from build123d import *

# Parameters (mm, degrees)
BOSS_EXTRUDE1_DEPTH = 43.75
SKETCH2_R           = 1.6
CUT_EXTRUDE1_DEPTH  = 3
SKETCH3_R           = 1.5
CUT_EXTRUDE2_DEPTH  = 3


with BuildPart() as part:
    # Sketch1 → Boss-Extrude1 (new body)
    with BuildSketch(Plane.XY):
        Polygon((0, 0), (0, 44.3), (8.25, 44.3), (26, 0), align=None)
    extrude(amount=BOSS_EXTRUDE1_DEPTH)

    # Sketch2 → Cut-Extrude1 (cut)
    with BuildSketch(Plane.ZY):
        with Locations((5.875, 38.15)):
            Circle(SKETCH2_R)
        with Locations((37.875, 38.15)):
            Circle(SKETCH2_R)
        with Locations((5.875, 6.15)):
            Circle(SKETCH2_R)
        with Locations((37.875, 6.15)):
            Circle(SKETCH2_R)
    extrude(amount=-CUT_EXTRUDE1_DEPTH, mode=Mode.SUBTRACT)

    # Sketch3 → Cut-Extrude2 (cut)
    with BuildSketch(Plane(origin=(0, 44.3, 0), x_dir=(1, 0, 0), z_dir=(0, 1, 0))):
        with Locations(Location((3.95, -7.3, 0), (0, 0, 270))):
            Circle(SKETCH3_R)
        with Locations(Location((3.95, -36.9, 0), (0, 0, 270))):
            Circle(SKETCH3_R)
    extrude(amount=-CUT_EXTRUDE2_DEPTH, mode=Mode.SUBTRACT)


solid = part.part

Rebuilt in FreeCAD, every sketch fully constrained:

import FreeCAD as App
import Part
import Sketcher

V = App.Vector
Q = App.Units.Quantity


def add_polygon(sketch, points):
    """Adds a closed chain of lines whose ends are joined by coincident constraints."""
    first, n = sketch.GeometryCount, len(points)
    for a, b in zip(points, points[1:] + points[:1]):
        sketch.addGeometry(Part.LineSegment(App.Vector(*a, 0), App.Vector(*b, 0)), False)
    for i in range(n):
        sketch.addConstraint(Sketcher.Constraint("Coincident", first + i, 2, first + (i + 1) % n, 1))

doc = App.newDocument("Part")
params = doc.addObject("Spreadsheet::Sheet", "Params")
for row, (alias, value) in enumerate([
    ("sketch1_width", "26 mm"),
    ("sketch1_height", "44.3 mm"),
    ("sketch1_width2", "8.25 mm"),
    ("pad1_length", "43.75 mm"),
    ("sketch2_diameter", "3.2 mm"),
    ("pocket1_length", "3 mm"),
    ("sketch3_diameter", "3 mm"),
    ("pocket2_length", "3 mm"),
], start=1):
    params.set(f"A{row}", alias)
    params.set(f"B{row}", "=" + value)
    params.setAlias(f"B{row}", alias)

body = doc.addObject("PartDesign::Body", "Body")

# Sketch on XY plane
sketch1 = body.newObject("Sketcher::SketchObject", "Sketch")
sketch1.AttachmentSupport = (doc.getObject("XY_Plane"), [""])
sketch1.MapMode = "FlatFace"
add_polygon(sketch1, [(0, 44), (0, 0), (26, 0), (8, 44)])  # lines 0-3
sketch1.addConstraint(Sketcher.Constraint("Vertical", 0))
sketch1.addConstraint(Sketcher.Constraint("Horizontal", 1))
sketch1.addConstraint(Sketcher.Constraint("Horizontal", 3))
sketch1.addConstraint(Sketcher.Constraint("Coincident", 0, 2, -1, 1))
sketch1.addConstraint(Sketcher.Constraint("DistanceX", 1, 1, 1, 2, Q("26 mm")))
sketch1.addConstraint(Sketcher.Constraint("DistanceY", 0, 2, 0, 1, Q("44.3 mm")))
sketch1.addConstraint(Sketcher.Constraint("DistanceX", 3, 2, 3, 1, Q("8.25 mm")))
sketch1.setExpression("Constraints[8]", "Params.sketch1_width")
sketch1.setExpression("Constraints[9]", "Params.sketch1_height")
sketch1.setExpression("Constraints[10]", "Params.sketch1_width2")
pad1 = body.newObject("PartDesign::Pad", "Pad")
pad1.Profile = sketch1
pad1.setExpression("Length", "Params.pad1_length")

# Sketch on YZ plane
sketch2 = body.newObject("Sketcher::SketchObject", "Sketch001")
sketch2.AttachmentSupport = (doc.getObject("YZ_Plane"), [""])
sketch2.MapMode = "FlatFace"
sketch2.addGeometry(Part.Circle(V(38.1, 5.9, 0), V(0, 0, 1), 1.6), False)
sketch2.addGeometry(Part.Circle(V(38.1, 37.9, 0), V(0, 0, 1), 1.6), False)
sketch2.addGeometry(Part.Circle(V(6.2, 5.9, 0), V(0, 0, 1), 1.6), False)
sketch2.addGeometry(Part.Circle(V(6.2, 37.9, 0), V(0, 0, 1), 1.6), False)
sketch2.addConstraint(Sketcher.Constraint("Equal", 0, 1))
sketch2.addConstraint(Sketcher.Constraint("Equal", 1, 2))
sketch2.addConstraint(Sketcher.Constraint("Equal", 2, 3))
sketch2.addConstraint(Sketcher.Constraint("Horizontal", 0, 3, 2, 3))
sketch2.addConstraint(Sketcher.Constraint("Horizontal", 1, 3, 3, 3))
sketch2.addConstraint(Sketcher.Constraint("Vertical", 0, 3, 1, 3))
sketch2.addConstraint(Sketcher.Constraint("Vertical", 2, 3, 3, 3))
sketch2.addConstraint(Sketcher.Constraint("Diameter", 0, Q("3.2 mm")))
sketch2.addConstraint(Sketcher.Constraint("DistanceY", 0, 3, 1, 3, Q("32 mm")))
sketch2.addConstraint(Sketcher.Constraint("DistanceX", 2, 3, 0, 3, Q("32 mm")))
sketch2.addConstraint(Sketcher.Constraint("DistanceX", -1, 1, 0, 3, Q("38.15 mm")))
sketch2.addConstraint(Sketcher.Constraint("DistanceY", -1, 1, 0, 3, Q("5.875 mm")))
sketch2.setExpression("Constraints[7]", "Params.sketch2_diameter")
pocket1 = body.newObject("PartDesign::Pocket", "Pocket")
pocket1.Profile = sketch2
pocket1.setExpression("Length", "Params.pocket1_length")
pocket1.Reversed = True

# Sketch on XZ plane
sketch3 = body.newObject("Sketcher::SketchObject", "Sketch002")
sketch3.AttachmentSupport = (doc.getObject("XZ_Plane"), [""])
sketch3.MapMode = "FlatFace"
sketch3.AttachmentOffset = App.Placement(V(0, 0, -44.3), App.Rotation())
sketch3.addGeometry(Part.Circle(V(4, 7.3, 0), V(0, 0, 1), 1.5), False)
sketch3.addGeometry(Part.Circle(V(4, 36.9, 0), V(0, 0, 1), 1.5), False)
sketch3.addConstraint(Sketcher.Constraint("Equal", 0, 1))
sketch3.addConstraint(Sketcher.Constraint("Vertical", 0, 3, 1, 3))
sketch3.addConstraint(Sketcher.Constraint("Diameter", 0, Q("3 mm")))
sketch3.addConstraint(Sketcher.Constraint("DistanceY", -1, 1, 0, 3, Q("7.3 mm")))
sketch3.addConstraint(Sketcher.Constraint("DistanceY", -1, 1, 1, 3, Q("36.9 mm")))
sketch3.addConstraint(Sketcher.Constraint("DistanceX", -1, 1, 0, 3, Q("3.95 mm")))
sketch3.setExpression("Constraints[2]", "Params.sketch3_diameter")
pocket2 = body.newObject("PartDesign::Pocket", "Pocket001")
pocket2.Profile = sketch3
pocket2.setExpression("Length", "Params.pocket2_length")
pocket2.Reversed = True

doc.recompute()
